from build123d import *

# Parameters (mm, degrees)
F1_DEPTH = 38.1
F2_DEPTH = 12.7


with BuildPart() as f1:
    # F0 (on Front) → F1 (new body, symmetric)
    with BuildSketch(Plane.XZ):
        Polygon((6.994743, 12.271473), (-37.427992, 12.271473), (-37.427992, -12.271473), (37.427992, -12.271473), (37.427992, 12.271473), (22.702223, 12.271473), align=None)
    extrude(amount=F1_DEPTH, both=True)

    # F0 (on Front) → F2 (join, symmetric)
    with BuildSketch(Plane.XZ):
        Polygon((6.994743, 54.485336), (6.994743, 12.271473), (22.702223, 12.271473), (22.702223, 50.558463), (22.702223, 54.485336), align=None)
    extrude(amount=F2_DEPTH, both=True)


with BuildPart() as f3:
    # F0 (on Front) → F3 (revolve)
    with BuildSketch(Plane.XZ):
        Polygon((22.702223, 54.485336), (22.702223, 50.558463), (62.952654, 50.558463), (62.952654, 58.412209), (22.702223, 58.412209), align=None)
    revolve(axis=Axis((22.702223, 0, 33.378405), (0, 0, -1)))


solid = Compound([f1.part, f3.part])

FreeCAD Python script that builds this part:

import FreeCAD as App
import Part
import Sketcher
from FreeCAD import Vector
Q = App.Units.Quantity

doc = App.newDocument("Part")
params = doc.addObject("Spreadsheet::Sheet", "Params")
for row, (alias, value) in enumerate([
    ("pad1_length", "3 in"),
    ("pad2_length", "1 in"),
    ("revolution_angle", "360 deg"),
], start=1):
    params.set(f"A{row}", alias)
    params.set(f"B{row}", "=" + value)
    params.setAlias(f"B{row}", alias)

body = doc.addObject("PartDesign::Body", "Body")

sketch1 = body.newObject("Sketcher::SketchObject", "Sketch")
sketch1.AttachmentSupport = (doc.getObject("XZ_Plane"), [""])
sketch1.MapMode = "FlatFace"
sketch1.addGeometry(Part.LineSegment(Vector(-37, 12, 0), Vector(-37, -12, 0)), False)
sketch1.addGeometry(Part.LineSegment(Vector(-37, -12, 0), Vector(37, -12, 0)), False)
sketch1.addGeometry(Part.LineSegment(Vector(37, -12, 0), Vector(37, 12, 0)), False)
sketch1.addGeometry(Part.LineSegment(Vector(37, 12, 0), Vector(-37, 12, 0)), False)
sketch1.addConstraint(Sketcher.Constraint("Coincident", 0, 2, 1, 1))
sketch1.addConstraint(Sketcher.Constraint("Coincident", 1, 2, 2, 1))
sketch1.addConstraint(Sketcher.Constraint("Coincident", 2, 2, 3, 1))
sketch1.addConstraint(Sketcher.Constraint("Coincident", 3, 2, 0, 1))
sketch1.addConstraint(Sketcher.Constraint("Vertical", 0))
sketch1.addConstraint(Sketcher.Constraint("Horizontal", 1))
sketch1.addConstraint(Sketcher.Constraint("Vertical", 2))
sketch1.addConstraint(Sketcher.Constraint("Horizontal", 3))
sketch1.addConstraint(Sketcher.Constraint("Symmetric", 0, 2, 2, 2, -1, 1))
sketch1.addConstraint(Sketcher.Constraint("DistanceX", 1, 1, 1, 2, Q("74.855984 mm")))
sketch1.addConstraint(Sketcher.Constraint("DistanceY", 0, 2, 0, 1, Q("24.542946 mm")))
pad1 = body.newObject("PartDesign::Pad", "Pad")
pad1.Profile = sketch1
pad1.setExpression("Length", "Params.pad1_length")
pad1.Midplane = True

sketch2 = body.newObject("Sketcher::SketchObject", "Sketch001")
sketch2.AttachmentSupport = (doc.getObject("XZ_Plane"), [""])
sketch2.MapMode = "FlatFace"
sketch2.addGeometry(Part.LineSegment(Vector(7, 54, 0), Vector(7, 12, 0)), False)
sketch2.addGeometry(Part.LineSegment(Vector(7, 12, 0), Vector(23, 12, 0)), False)
sketch2.addGeometry(Part.LineSegment(Vector(23, 12, 0), Vector(23, 54, 0)), False)
sketch2.addGeometry(Part.LineSegment(Vector(23, 54, 0), Vector(7, 54, 0)), False)
sketch2.addConstraint(Sketcher.Constraint("Coincident", 0, 2, 1, 1))
sketch2.addConstraint(Sketcher.Constraint("Coincident", 1, 2, 2, 1))
sketch2.addConstraint(Sketcher.Constraint("Coincident", 2, 2, 3, 1))
sketch2.addConstraint(Sketcher.Constraint("Coincident", 3, 2, 0, 1))
sketch2.addConstraint(Sketcher.Constraint("Vertical", 0))
sketch2.addConstraint(Sketcher.Constraint("Horizontal", 1))
sketch2.addConstraint(Sketcher.Constraint("Vertical", 2))
sketch2.addConstraint(Sketcher.Constraint("Horizontal", 3))
sketch2.addConstraint(Sketcher.Constraint("DistanceX", 1, 1, 1, 2, Q("15.70748 mm")))
sketch2.addConstraint(Sketcher.Constraint("DistanceY", 0, 2, 0, 1, Q("42.213863 mm")))
sketch2.addConstraint(Sketcher.Constraint("DistanceX", -1, 1, 0, 2, Q("6.994743 mm")))
sketch2.addConstraint(Sketcher.Constraint("DistanceY", -1, 1, 0, 2, Q("12.271473 mm")))
pad2 = body.newObject("PartDesign::Pad", "Pad001")
pad2.Profile = sketch2
pad2.setExpression("Length", "Params.pad2_length")
pad2.Midplane = True
body2 = doc.addObject("PartDesign::Body", "Body001")

sketch3 = body2.newObject("Sketcher::SketchObject", "Sketch002")
sketch3.AttachmentSupport = (doc.getObject("XZ_Plane001"), [""])
sketch3.MapMode = "FlatFace"
sketch3.addGeometry(Part.LineSegment(Vector(23, 51, 0), Vector(63, 51, 0)), False)
sketch3.addGeometry(Part.LineSegment(Vector(63, 51, 0), Vector(63, 58, 0)), False)
sketch3.addGeometry(Part.LineSegment(Vector(63, 58, 0), Vector(23, 58, 0)), False)
sketch3.addGeometry(Part.LineSegment(Vector(23, 58, 0), Vector(23, 51, 0)), False)
sketch3.addGeometry(Part.LineSegment(Vector(23, 58, 0), Vector(23, 51, 0)), True)
sketch3.addConstraint(Sketcher.Constraint("Coincident", 0, 2, 1, 1))
sketch3.addConstraint(Sketcher.Constraint("Coincident", 1, 2, 2, 1))
sketch3.addConstraint(Sketcher.Constraint("Coincident", 2, 2, 3, 1))
sketch3.addConstraint(Sketcher.Constraint("Coincident", 3, 2, 0, 1))
sketch3.addConstraint(Sketcher.Constraint("Horizontal", 0))
sketch3.addConstraint(Sketcher.Constraint("Vertical", 1))
sketch3.addConstraint(Sketcher.Constraint("Horizontal", 2))
sketch3.addConstraint(Sketcher.Constraint("Vertical", 3))
sketch3.addConstraint(Sketcher.Constraint("Vertical", 4))
sketch3.addConstraint(Sketcher.Constraint("Coincident", 4, 1, 2, 2))
sketch3.addConstraint(Sketcher.Constraint("Horizontal", 0, 2, 4, 2))
sketch3.addConstraint(Sketcher.Constraint("DistanceX", 0, 1, 0, 2, Q("40.250431 mm")))
sketch3.addConstraint(Sketcher.Constraint("DistanceY", 1, 1, 1, 2, Q("7.853746 mm")))
sketch3.addConstraint(Sketcher.Constraint("DistanceY", -1, 1, 1, 2, Q("58.412209 mm")))
sketch3.addConstraint(Sketcher.Constraint("DistanceX", -1, 1, 0, 2, Q("62.952654 mm")))
revolution = body2.newObject("PartDesign::Revolution", "Revolution")
revolution.Profile = sketch3
revolution.ReferenceAxis = (sketch3, ["Axis0"])
revolution.setExpression("Angle", "Params.revolution_angle")

doc.recompute()
